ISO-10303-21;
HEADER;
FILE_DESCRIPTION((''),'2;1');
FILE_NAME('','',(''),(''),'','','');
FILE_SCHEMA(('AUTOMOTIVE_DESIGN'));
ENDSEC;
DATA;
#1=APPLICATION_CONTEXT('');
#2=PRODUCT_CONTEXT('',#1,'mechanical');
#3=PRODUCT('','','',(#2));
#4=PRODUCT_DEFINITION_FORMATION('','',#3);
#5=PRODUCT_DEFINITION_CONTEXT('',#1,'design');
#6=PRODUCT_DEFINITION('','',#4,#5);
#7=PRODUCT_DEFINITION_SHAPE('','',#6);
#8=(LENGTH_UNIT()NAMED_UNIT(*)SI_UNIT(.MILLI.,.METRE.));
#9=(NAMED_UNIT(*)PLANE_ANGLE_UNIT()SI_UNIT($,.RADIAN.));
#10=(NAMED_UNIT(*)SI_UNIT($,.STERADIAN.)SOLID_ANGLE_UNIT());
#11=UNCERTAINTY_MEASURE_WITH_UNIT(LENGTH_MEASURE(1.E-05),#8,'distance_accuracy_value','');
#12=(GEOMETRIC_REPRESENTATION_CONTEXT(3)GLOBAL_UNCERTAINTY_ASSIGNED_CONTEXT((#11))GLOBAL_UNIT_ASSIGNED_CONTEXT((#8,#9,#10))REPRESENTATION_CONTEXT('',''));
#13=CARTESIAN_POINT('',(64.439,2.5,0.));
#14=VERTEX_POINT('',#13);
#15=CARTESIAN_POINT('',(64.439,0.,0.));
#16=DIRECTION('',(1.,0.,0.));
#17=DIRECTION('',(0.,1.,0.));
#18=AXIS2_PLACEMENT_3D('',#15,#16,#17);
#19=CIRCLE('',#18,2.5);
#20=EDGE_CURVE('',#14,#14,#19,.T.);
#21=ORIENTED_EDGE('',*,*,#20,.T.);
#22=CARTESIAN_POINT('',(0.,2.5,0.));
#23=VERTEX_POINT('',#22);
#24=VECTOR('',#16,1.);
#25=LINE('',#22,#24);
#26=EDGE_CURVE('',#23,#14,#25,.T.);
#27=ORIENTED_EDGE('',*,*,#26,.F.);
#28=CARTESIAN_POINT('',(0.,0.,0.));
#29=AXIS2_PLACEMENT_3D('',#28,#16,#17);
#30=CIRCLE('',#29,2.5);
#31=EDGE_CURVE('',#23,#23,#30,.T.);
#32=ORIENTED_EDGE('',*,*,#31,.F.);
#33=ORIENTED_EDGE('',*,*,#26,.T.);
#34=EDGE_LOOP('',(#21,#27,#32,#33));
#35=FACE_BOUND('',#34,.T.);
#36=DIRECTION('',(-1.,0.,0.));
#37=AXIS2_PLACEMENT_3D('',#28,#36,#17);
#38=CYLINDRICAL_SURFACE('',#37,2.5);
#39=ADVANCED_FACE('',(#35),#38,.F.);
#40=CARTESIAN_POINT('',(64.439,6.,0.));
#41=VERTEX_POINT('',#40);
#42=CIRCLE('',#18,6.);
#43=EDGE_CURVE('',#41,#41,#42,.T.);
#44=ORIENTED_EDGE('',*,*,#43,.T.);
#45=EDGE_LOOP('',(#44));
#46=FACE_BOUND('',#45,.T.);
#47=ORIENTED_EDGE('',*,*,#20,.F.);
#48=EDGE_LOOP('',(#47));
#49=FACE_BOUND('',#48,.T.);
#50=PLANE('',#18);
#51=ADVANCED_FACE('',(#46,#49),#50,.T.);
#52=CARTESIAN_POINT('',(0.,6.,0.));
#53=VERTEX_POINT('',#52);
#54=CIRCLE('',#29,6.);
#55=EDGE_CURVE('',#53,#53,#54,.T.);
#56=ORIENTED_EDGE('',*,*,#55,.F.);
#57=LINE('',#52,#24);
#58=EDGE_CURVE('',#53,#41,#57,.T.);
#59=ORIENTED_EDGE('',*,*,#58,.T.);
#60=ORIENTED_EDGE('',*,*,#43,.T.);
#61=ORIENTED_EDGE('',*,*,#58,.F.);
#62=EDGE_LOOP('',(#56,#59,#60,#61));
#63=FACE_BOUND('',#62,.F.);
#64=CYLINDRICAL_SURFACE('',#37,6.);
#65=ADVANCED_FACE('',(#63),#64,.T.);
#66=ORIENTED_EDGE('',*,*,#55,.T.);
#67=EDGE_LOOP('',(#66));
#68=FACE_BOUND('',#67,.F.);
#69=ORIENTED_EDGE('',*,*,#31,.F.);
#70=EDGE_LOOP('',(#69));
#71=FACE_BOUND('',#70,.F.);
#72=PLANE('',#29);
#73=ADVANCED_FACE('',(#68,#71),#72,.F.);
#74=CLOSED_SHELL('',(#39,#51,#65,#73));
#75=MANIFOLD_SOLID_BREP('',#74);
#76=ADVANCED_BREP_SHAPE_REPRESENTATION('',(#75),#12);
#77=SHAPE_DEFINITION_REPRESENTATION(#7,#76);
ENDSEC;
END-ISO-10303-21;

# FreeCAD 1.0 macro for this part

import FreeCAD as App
import Part
import Sketcher

doc = App.newDocument("Part")
params = doc.addObject("Spreadsheet::Sheet", "Params")
for row, (alias, value) in enumerate([
    ("sketch1_diameter", "12 mm"),
    ("sketch1_diameter2", "5 mm"),
    ("pad1_length", "64.439 mm"),
], start=1):
    params.set(f"A{row}", alias)
    params.set(f"B{row}", "=" + value)
    params.setAlias(f"B{row}", alias)

body = doc.addObject("PartDesign::Body", "Body")

# Sketch on YZ plane
sketch1 = body.newObject("Sketcher::SketchObject", "Sketch")
sketch1.AttachmentSupport = (doc.getObject("YZ_Plane"), [""])
sketch1.MapMode = "FlatFace"
sketch1.addGeometry([
    Part.Circle(App.Vector(0, 0, 0), App.Vector(0, 0, 1), 6),
    Part.Circle(App.Vector(0, 0, 0), App.Vector(0, 0, 1), 2.5),
], False)
sketch1.addConstraint([
    Sketcher.Constraint("Coincident", 0, 3, -1, 1),
    Sketcher.Constraint("Coincident", 1, 3, -1, 1),
    Sketcher.Constraint("Diameter", 0, 12.0),
    Sketcher.Constraint("Diameter", 1, 5.0),
])
sketch1.setExpression("Constraints[2]", "Params.sketch1_diameter")
sketch1.setExpression("Constraints[3]", "Params.sketch1_diameter2")
pad1 = body.newObject("PartDesign::Pad", "Pad")
pad1.Profile = sketch1
pad1.setExpression("Length", "Params.pad1_length")

doc.recompute()
